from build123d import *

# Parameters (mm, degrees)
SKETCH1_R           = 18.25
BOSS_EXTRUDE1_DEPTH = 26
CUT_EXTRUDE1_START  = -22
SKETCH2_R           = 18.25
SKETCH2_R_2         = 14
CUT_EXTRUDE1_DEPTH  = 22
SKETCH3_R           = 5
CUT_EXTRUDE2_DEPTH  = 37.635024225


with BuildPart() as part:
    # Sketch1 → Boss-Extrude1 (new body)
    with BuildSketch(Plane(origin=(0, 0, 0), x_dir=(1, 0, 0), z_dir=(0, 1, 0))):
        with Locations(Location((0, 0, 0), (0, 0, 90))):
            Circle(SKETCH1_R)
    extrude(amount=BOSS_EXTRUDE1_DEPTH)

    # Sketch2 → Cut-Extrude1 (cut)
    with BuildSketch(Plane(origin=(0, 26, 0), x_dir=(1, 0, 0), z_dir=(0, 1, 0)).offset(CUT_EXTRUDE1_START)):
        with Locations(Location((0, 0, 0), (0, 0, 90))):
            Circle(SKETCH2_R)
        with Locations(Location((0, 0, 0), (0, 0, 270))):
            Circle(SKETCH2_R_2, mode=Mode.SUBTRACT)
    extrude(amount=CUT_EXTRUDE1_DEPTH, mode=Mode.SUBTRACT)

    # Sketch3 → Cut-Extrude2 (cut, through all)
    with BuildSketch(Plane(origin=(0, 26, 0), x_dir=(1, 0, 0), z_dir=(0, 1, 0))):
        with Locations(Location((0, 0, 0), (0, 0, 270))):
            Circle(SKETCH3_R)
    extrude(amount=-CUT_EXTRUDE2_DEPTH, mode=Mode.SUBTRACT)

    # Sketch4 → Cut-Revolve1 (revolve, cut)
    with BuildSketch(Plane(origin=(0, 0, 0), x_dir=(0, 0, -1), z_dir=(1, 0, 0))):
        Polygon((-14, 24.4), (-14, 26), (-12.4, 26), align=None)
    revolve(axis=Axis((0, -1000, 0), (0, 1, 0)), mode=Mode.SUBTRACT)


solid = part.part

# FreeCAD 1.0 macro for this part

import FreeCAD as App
import Part
import Sketcher
from FreeCAD import Vector


def add_polygon(sketch, points):
    """Adds a closed chain of lines whose ends are joined by coincident constraints."""
    first, n = sketch.GeometryCount, len(points)
    for a, b in zip(points, points[1:] + points[:1]):
        sketch.addGeometry(Part.LineSegment(App.Vector(*a, 0), App.Vector(*b, 0)), False)
    for i in range(n):
        sketch.addConstraint(Sketcher.Constraint("Coincident", first + i, 2, first + (i + 1) % n, 1))

doc = App.newDocument("Part")
body = doc.addObject("PartDesign::Body", "Body")

sketch1 = doc.addObject("Sketcher::SketchObject", "Sketch")
body.addObject(sketch1)
sketch1.AttachmentSupport = (doc.XZ_Plane, [""])
sketch1.MapMode = "FlatFace"
sketch1.addGeometry(Part.Circle(Vector(0, 0, 0), Vector(0, 0, 1), 18), False)
sketch1.addConstraint([
    Sketcher.Constraint("Coincident", 0, 3, -1, 1),
    Sketcher.Constraint("Diameter", 0, 36.5),
])
pad1 = doc.addObject("PartDesign::Pad", "Pad")
body.addObject(pad1)
pad1.Profile = sketch1
pad1.Length = 26
pad1.Reversed = True

sketch2 = doc.addObject("Sketcher::SketchObject", "Sketch001")
body.addObject(sketch2)
sketch2.AttachmentSupport = (doc.XZ_Plane, [""])
sketch2.MapMode = "FlatFace"
sketch2.AttachmentOffset = App.Placement(Vector(0, 0, -4), App.Rotation())
sketch2.addGeometry([
    Part.Circle(Vector(0, 0, 0), Vector(0, 0, 1), 18),
    Part.Circle(Vector(0, 0, 0), Vector(0, 0, 1), 14),
], False)
sketch2.addConstraint([
    Sketcher.Constraint("Coincident", 0, 3, -1, 1),
    Sketcher.Constraint("Coincident", 1, 3, -1, 1),
    Sketcher.Constraint("Diameter", 1, 28.0),
    Sketcher.Constraint("Diameter", 0, 36.5),
])
pocket1 = doc.addObject("PartDesign::Pocket", "Pocket")
body.addObject(pocket1)
pocket1.Profile = sketch2
pocket1.Length = 22

sketch3 = doc.addObject("Sketcher::SketchObject", "Sketch002")
body.addObject(sketch3)
sketch3.AttachmentSupport = (doc.XZ_Plane, [""])
sketch3.MapMode = "FlatFace"
sketch3.AttachmentOffset = App.Placement(Vector(0, 0, -26), App.Rotation())
sketch3.addGeometry(Part.Circle(Vector(0, 0, 0), Vector(0, 0, 1), 5), False)
sketch3.addConstraint([
    Sketcher.Constraint("Coincident", 0, 3, -1, 1),
    Sketcher.Constraint("Diameter", 0, 10.0),
])
pocket2 = doc.addObject("PartDesign::Pocket", "Pocket001")
body.addObject(pocket2)
pocket2.Profile = sketch3
pocket2.Type = "ThroughAll"
pocket2.Reversed = True

sketch4 = doc.addObject("Sketcher::SketchObject", "Sketch003")
body.addObject(sketch4)
sketch4.AttachmentSupport = (doc.YZ_Plane, [""])
sketch4.MapMode = "FlatFace"
add_polygon(sketch4, [(26, 14), (24.4, 14), (26, 12.4)])
sketch4.addConstraint([
    Sketcher.Constraint("Horizontal", 0),
    Sketcher.Constraint("Vertical", 2),
    Sketcher.Constraint("Equal", 0, 2),
    Sketcher.Constraint("DistanceX", 0, 2, 0, 1, 1.6),
    Sketcher.Constraint("DistanceY", -1, 1, 0, 2, 14.0),
    Sketcher.Constraint("DistanceX", -1, 1, 1, 2, 26.0),
])
groove = doc.addObject("PartDesign::Groove", "Groove")
body.addObject(groove)
groove.Profile = sketch4
groove.ReferenceAxis = (sketch4, ["H_Axis"])
groove.Angle = 360

doc.recompute()
